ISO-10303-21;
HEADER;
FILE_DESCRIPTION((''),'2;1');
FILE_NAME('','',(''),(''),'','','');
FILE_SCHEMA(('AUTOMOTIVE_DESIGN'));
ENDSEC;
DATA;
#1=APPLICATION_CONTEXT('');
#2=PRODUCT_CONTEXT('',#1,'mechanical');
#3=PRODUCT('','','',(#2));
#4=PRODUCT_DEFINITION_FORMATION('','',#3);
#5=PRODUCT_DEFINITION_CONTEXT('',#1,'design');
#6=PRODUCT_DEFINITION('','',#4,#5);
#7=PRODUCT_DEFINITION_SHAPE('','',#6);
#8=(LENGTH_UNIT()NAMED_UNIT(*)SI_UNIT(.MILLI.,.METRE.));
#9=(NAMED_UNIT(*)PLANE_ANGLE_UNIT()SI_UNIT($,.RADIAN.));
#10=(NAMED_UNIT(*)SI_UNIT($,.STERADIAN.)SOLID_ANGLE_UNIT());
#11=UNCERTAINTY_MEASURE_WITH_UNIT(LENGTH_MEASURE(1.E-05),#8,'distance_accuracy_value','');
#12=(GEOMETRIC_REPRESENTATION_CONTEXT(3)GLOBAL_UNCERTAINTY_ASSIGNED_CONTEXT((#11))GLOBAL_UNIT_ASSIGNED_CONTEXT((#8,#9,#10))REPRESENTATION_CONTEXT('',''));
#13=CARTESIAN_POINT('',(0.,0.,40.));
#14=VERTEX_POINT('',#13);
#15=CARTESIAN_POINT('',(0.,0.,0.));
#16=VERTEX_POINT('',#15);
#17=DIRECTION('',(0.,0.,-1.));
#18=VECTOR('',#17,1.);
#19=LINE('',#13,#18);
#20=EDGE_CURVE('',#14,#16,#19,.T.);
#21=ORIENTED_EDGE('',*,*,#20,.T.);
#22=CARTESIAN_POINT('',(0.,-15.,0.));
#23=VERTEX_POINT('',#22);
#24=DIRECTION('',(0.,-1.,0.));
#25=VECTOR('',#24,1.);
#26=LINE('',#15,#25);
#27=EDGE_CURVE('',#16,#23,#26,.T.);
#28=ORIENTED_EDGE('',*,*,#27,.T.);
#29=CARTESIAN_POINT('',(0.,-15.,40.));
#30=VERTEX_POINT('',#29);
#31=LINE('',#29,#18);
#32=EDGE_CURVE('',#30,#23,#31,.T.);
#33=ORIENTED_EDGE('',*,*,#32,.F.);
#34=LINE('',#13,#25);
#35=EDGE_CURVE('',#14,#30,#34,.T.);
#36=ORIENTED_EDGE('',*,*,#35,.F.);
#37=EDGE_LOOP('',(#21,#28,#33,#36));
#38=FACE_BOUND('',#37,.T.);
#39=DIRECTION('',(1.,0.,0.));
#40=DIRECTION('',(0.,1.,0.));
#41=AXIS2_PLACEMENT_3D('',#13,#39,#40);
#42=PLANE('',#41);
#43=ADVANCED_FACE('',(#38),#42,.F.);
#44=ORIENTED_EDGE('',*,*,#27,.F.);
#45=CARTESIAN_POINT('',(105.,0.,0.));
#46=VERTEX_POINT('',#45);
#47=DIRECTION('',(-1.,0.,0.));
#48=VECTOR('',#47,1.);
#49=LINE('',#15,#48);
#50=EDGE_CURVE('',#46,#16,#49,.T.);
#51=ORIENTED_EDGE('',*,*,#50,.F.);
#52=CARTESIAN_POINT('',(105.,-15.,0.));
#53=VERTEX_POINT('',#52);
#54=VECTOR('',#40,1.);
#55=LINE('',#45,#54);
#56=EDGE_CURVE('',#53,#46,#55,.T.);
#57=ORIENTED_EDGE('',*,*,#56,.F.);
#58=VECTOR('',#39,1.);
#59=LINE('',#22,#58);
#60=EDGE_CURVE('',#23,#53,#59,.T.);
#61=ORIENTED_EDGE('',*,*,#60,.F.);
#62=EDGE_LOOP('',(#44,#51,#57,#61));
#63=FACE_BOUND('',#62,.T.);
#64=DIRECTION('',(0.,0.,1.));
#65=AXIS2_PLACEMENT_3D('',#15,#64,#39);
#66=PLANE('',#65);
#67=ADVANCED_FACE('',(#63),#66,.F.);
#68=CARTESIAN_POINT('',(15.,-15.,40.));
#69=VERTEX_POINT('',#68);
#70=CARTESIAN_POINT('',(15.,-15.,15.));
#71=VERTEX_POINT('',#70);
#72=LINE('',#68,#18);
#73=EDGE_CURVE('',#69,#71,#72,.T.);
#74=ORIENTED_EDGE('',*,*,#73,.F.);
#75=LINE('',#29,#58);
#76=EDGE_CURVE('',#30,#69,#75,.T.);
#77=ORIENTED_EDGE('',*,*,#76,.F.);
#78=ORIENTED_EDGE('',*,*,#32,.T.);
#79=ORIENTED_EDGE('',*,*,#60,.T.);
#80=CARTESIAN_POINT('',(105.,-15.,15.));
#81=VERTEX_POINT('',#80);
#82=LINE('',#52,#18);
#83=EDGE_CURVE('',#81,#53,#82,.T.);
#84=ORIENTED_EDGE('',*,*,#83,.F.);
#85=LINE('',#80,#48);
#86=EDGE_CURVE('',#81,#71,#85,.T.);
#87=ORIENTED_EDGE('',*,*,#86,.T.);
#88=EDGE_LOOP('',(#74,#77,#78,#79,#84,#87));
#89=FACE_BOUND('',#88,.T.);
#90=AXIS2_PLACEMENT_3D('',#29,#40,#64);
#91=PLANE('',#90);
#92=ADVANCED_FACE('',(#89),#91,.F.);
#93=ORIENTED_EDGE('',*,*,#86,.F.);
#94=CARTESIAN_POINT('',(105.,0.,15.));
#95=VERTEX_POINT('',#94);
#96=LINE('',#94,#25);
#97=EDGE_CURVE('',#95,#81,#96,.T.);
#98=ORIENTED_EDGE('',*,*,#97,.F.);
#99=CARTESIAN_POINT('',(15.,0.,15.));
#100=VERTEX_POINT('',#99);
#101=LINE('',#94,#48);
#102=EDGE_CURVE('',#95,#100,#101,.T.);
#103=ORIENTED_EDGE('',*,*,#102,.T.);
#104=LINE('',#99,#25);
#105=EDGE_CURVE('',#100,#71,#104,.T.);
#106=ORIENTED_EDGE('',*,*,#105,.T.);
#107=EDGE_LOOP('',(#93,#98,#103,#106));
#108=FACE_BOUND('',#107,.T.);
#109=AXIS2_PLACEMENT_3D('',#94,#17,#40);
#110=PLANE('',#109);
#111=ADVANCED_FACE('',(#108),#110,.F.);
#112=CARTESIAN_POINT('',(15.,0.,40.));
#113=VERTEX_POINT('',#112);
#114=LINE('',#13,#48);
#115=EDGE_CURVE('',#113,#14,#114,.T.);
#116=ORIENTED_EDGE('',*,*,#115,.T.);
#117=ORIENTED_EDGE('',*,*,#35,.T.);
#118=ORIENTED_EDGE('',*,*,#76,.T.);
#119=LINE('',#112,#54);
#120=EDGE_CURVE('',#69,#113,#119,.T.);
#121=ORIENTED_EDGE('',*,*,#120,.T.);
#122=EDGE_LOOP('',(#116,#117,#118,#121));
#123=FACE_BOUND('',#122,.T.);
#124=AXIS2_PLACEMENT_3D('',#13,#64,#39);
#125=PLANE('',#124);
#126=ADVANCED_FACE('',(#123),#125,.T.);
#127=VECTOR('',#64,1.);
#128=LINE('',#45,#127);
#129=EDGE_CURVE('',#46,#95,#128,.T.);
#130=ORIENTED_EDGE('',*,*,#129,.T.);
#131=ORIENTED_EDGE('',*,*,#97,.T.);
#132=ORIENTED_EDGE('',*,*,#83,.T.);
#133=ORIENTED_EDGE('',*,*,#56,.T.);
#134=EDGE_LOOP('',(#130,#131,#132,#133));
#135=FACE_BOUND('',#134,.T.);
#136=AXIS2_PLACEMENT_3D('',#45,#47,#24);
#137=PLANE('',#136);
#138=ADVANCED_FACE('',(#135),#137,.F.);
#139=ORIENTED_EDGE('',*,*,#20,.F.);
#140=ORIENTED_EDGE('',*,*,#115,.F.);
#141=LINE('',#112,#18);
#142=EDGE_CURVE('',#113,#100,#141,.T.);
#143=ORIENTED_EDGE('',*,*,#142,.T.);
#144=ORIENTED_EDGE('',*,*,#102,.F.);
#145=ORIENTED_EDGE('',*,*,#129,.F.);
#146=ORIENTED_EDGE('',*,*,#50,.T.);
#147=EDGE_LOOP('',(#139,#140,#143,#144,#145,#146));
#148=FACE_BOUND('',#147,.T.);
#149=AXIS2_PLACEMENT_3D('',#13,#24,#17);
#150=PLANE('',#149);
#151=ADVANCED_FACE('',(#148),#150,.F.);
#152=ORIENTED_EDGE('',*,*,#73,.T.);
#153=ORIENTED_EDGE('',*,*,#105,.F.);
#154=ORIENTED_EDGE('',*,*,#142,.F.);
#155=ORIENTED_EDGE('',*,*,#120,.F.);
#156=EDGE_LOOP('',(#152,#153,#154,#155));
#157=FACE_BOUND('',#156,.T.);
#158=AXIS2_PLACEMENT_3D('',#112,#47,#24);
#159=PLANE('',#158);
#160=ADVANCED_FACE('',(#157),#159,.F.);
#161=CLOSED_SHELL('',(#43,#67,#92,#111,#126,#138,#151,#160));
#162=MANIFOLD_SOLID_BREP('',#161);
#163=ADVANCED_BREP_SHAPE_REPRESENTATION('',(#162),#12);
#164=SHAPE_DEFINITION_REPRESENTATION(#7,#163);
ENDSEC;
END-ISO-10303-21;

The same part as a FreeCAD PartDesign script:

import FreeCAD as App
import Part
import Sketcher
from FreeCAD import Vector


def add_polygon(sketch, points):
    """Adds a closed chain of lines whose ends are joined by coincident constraints."""
    first, n = sketch.GeometryCount, len(points)
    for a, b in zip(points, points[1:] + points[:1]):
        sketch.addGeometry(Part.LineSegment(App.Vector(*a, 0), App.Vector(*b, 0)), False)
    for i in range(n):
        sketch.addConstraint(Sketcher.Constraint("Coincident", first + i, 2, first + (i + 1) % n, 1))

doc = App.newDocument("Part")
body = doc.addObject("PartDesign::Body", "Body")

sketch1 = doc.addObject("Sketcher::SketchObject", "Sketch")
body.addObject(sketch1)
sketch1.AttachmentSupport = (doc.XY_Plane, [""])
sketch1.MapMode = "FlatFace"
add_polygon(sketch1, [(0, 0), (0, -15), (15, -15), (15, 0)])
sketch1.addConstraint(Sketcher.Constraint("Vertical", 0))
sketch1.addConstraint(Sketcher.Constraint("Horizontal", 1))
sketch1.addConstraint(Sketcher.Constraint("Vertical", 2))
sketch1.addConstraint(Sketcher.Constraint("Horizontal", 3))
sketch1.addConstraint(Sketcher.Constraint("Coincident", 3, 2, -1, 1))
sketch1.addConstraint(Sketcher.Constraint("Equal", 3, 0))
sketch1.addConstraint(Sketcher.Constraint("DistanceX", 1, 1, 1, 2, 15.0))
pad1 = doc.addObject("PartDesign::Pad", "Pad")
body.addObject(pad1)
pad1.Profile = sketch1
pad1.Length = 40

sketch2 = doc.addObject("Sketcher::SketchObject", "Sketch001")
body.addObject(sketch2)
sketch2.AttachmentSupport = (doc.YZ_Plane, [""])
sketch2.MapMode = "FlatFace"
sketch2.AttachmentOffset = App.Placement(Vector(0, 0, 15), App.Rotation())
add_polygon(sketch2, [(0, 15), (-15, 15), (-15, 0), (0, 0)])
sketch2.addConstraint(Sketcher.Constraint("Horizontal", 0))
sketch2.addConstraint(Sketcher.Constraint("Vertical", 1))
sketch2.addConstraint(Sketcher.Constraint("Horizontal", 2))
sketch2.addConstraint(Sketcher.Constraint("Vertical", 3))
sketch2.addConstraint(Sketcher.Constraint("Coincident", 2, 2, -1, 1))
sketch2.addConstraint(Sketcher.Constraint("Equal", 2, 1))
sketch2.addConstraint(Sketcher.Constraint("DistanceX", 0, 2, 0, 1, 15.0))
pad2 = doc.addObject("PartDesign::Pad", "Pad001")
body.addObject(pad2)
pad2.Profile = sketch2
pad2.Length = 90

doc.recompute()
